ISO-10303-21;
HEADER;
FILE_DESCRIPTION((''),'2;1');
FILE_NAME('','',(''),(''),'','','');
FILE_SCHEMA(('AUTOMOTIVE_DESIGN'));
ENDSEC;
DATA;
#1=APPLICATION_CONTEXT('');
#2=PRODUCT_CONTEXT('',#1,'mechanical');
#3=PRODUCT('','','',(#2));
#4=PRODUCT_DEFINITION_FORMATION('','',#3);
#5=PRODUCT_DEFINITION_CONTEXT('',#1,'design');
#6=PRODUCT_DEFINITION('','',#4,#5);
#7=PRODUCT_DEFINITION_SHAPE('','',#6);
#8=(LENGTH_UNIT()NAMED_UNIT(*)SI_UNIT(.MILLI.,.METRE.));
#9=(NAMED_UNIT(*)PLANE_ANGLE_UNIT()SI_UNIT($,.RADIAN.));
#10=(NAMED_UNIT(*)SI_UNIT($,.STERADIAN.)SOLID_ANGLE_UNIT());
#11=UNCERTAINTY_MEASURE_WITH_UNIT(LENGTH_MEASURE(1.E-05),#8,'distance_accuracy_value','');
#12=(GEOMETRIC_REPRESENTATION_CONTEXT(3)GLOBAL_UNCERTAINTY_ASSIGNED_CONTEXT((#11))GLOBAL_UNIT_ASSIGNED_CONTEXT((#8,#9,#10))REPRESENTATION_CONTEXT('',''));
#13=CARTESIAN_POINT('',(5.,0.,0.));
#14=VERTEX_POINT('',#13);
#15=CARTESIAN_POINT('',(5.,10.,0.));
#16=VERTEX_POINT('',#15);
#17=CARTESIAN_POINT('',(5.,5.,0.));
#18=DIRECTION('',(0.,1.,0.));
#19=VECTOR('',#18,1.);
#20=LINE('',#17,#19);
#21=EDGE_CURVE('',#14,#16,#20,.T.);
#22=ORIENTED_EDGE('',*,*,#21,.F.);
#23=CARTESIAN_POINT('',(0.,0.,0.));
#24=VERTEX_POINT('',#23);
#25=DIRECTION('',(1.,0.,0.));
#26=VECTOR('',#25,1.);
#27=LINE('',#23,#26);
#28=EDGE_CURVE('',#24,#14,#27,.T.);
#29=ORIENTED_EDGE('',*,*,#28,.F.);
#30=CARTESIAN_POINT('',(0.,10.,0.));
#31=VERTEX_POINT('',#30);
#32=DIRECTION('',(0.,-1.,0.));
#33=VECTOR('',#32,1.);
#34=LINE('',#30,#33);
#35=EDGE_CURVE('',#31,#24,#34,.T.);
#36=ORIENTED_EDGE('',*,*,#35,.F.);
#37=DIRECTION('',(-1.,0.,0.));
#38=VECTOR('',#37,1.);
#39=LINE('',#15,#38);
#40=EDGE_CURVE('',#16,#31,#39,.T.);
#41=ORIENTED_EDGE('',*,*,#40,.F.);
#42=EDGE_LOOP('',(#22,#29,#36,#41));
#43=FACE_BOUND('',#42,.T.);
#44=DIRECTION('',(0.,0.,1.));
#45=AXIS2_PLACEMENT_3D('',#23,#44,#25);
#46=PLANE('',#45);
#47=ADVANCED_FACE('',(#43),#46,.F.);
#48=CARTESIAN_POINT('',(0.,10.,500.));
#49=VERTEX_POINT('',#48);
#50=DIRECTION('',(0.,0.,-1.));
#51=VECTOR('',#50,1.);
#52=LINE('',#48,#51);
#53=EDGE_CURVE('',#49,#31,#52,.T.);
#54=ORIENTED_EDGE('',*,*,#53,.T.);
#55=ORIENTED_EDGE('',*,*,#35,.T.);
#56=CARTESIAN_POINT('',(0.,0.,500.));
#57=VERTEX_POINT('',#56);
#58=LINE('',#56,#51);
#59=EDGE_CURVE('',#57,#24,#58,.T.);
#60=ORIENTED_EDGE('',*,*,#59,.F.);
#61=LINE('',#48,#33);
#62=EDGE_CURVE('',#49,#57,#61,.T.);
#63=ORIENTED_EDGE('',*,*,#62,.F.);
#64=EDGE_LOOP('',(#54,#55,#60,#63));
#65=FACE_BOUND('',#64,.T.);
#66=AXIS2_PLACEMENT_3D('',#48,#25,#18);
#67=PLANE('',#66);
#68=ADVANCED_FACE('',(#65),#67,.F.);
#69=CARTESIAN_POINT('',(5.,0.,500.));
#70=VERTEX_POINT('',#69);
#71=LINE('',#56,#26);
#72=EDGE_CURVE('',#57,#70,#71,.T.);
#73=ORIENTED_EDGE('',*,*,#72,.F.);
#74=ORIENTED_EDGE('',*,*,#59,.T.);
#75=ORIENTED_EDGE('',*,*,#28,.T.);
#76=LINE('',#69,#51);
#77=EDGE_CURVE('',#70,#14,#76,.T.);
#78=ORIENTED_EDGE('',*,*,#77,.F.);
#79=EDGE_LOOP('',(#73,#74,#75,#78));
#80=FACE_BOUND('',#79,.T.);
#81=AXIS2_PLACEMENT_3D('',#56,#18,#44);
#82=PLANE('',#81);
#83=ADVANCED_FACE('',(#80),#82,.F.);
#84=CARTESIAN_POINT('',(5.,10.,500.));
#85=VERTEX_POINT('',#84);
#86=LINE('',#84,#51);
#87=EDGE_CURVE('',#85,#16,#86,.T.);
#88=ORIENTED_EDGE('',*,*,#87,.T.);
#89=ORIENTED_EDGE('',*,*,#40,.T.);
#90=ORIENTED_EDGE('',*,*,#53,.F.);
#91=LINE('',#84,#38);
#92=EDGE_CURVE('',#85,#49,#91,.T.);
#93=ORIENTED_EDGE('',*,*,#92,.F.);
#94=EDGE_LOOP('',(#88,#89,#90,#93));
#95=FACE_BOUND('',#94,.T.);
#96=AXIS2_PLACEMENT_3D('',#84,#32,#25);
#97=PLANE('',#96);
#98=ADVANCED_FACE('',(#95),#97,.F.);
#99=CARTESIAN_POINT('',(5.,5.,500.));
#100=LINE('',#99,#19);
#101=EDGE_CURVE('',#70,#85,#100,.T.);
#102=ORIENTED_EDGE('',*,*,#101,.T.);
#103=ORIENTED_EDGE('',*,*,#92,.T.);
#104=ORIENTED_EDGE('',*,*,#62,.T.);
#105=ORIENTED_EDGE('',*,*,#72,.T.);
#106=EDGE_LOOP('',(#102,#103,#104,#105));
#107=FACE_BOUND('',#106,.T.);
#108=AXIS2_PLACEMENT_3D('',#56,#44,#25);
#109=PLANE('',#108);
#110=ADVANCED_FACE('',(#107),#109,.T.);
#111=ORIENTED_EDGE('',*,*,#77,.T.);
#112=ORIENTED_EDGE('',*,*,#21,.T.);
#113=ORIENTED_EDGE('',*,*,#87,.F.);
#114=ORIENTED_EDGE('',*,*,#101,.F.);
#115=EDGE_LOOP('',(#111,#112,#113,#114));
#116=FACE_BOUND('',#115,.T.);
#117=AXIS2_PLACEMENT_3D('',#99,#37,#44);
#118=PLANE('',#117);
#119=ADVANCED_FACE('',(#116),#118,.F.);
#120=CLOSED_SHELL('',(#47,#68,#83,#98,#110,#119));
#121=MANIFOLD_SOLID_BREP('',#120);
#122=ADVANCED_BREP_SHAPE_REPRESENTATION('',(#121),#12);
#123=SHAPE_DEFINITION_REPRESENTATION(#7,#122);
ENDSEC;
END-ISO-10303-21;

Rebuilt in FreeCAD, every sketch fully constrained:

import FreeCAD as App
import Part
import Sketcher


def add_polygon(sketch, points):
    """Adds a closed chain of lines whose ends are joined by coincident constraints."""
    first, n = sketch.GeometryCount, len(points)
    for a, b in zip(points, points[1:] + points[:1]):
        sketch.addGeometry(Part.LineSegment(App.Vector(*a, 0), App.Vector(*b, 0)), False)
    for i in range(n):
        sketch.addConstraint(Sketcher.Constraint("Coincident", first + i, 2, first + (i + 1) % n, 1))

doc = App.newDocument("Part")
body = doc.addObject("PartDesign::Body", "Body")

# Sketch on XY plane
sketch1 = doc.addObject("Sketcher::SketchObject", "Sketch")
body.addObject(sketch1)
sketch1.AttachmentSupport = (doc.XY_Plane, [""])
sketch1.MapMode = "FlatFace"
add_polygon(sketch1, [(0, 10), (0, 0), (5, 0), (5, 10)])  # lines 0-3
sketch1.addConstraint([
    Sketcher.Constraint("Vertical", 0),
    Sketcher.Constraint("Horizontal", 1),
    Sketcher.Constraint("Vertical", 2),
    Sketcher.Constraint("Horizontal", 3),
    Sketcher.Constraint("Coincident", 0, 2, -1, 1),
    Sketcher.Constraint("DistanceX", 1, 1, 1, 2, 5.0),
    Sketcher.Constraint("DistanceY", 0, 2, 0, 1, 10.0),
])
pad1 = doc.addObject("PartDesign::Pad", "Pad")
body.addObject(pad1)
pad1.Profile = sketch1
pad1.Length = 500

doc.recompute()
